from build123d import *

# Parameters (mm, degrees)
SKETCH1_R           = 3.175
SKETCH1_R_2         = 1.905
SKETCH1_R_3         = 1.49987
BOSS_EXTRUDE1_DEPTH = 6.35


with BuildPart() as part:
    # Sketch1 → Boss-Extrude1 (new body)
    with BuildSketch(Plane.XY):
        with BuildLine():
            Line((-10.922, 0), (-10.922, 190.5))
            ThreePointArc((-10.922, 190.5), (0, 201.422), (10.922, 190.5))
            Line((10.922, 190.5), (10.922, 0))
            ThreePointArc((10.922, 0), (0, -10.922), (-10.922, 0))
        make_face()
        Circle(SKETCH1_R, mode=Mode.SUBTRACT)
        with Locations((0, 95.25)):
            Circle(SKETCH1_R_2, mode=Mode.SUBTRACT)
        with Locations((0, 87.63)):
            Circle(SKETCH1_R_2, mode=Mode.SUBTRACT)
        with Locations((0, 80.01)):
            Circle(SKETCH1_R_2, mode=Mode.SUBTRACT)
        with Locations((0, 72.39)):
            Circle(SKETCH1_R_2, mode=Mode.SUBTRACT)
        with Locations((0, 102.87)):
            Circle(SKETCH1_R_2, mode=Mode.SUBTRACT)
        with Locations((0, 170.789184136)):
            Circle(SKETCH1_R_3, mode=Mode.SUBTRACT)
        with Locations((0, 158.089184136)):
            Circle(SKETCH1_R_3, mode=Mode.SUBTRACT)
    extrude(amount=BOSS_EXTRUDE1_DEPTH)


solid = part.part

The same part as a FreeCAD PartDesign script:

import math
import FreeCAD as App
import Part
import Sketcher
from FreeCAD import Vector
Q = App.Units.Quantity

doc = App.newDocument("Part")
body = doc.addObject("PartDesign::Body", "Body")

sketch1 = body.newObject("Sketcher::SketchObject", "Sketch")
sketch1.AttachmentSupport = (doc.getObject("XY_Plane"), [""])
sketch1.MapMode = "FlatFace"
sketch1.addGeometry(Part.LineSegment(Vector(-10.9, 190.5, 0), Vector(-10.9, 0, 0)), False)
sketch1.addGeometry(Part.ArcOfCircle(Part.Circle(Vector(0, 0, 0), Vector(0, 0, 1), 10.9), math.radians(180), math.radians(360)), False)
sketch1.addGeometry(Part.LineSegment(Vector(10.9, 0, 0), Vector(10.9, 190.5, 0)), False)
sketch1.addGeometry(Part.ArcOfCircle(Part.Circle(Vector(0, 190.5, 0), Vector(0, 0, 1), 10.9), math.radians(0), math.radians(180)), False)
sketch1.addGeometry(Part.Circle(Vector(0, 0, 0), Vector(0, 0, 1), 3.2), False)
sketch1.addGeometry(Part.Circle(Vector(0, 72.4, 0), Vector(0, 0, 1), 1.9), False)
sketch1.addGeometry(Part.Circle(Vector(0, 80, 0), Vector(0, 0, 1), 1.9), False)
sketch1.addGeometry(Part.Circle(Vector(0, 87.6, 0), Vector(0, 0, 1), 1.9), False)
sketch1.addGeometry(Part.Circle(Vector(0, 95.2, 0), Vector(0, 0, 1), 1.9), False)
sketch1.addGeometry(Part.Circle(Vector(0, 102.9, 0), Vector(0, 0, 1), 1.9), False)
sketch1.addGeometry(Part.Circle(Vector(0, 158.1, 0), Vector(0, 0, 1), 1.5), False)
sketch1.addGeometry(Part.Circle(Vector(0, 170.8, 0), Vector(0, 0, 1), 1.5), False)
sketch1.addConstraint(Sketcher.Constraint("Tangent", 0, 2, 1, 1))
sketch1.addConstraint(Sketcher.Constraint("Tangent", 1, 2, 2, 1))
sketch1.addConstraint(Sketcher.Constraint("Tangent", 2, 2, 3, 1))
sketch1.addConstraint(Sketcher.Constraint("Tangent", 3, 2, 0, 1))
sketch1.addConstraint(Sketcher.Constraint("Vertical", 0))
sketch1.addConstraint(Sketcher.Constraint("Vertical", 2))
sketch1.addConstraint(Sketcher.Constraint("Coincident", 1, 3, -1, 1))
sketch1.addConstraint(Sketcher.Constraint("Coincident", 4, 3, -1, 1))
sketch1.addConstraint(Sketcher.Constraint("Equal", 5, 6))
sketch1.addConstraint(Sketcher.Constraint("Equal", 6, 7))
sketch1.addConstraint(Sketcher.Constraint("Equal", 7, 8))
sketch1.addConstraint(Sketcher.Constraint("Equal", 8, 9))
sketch1.addConstraint(Sketcher.Constraint("Equal", 10, 11))
sketch1.addConstraint(Sketcher.Constraint("PointOnObject", 5, 3, -2))
sketch1.addConstraint(Sketcher.Constraint("PointOnObject", 6, 3, -2))
sketch1.addConstraint(Sketcher.Constraint("PointOnObject", 7, 3, -2))
sketch1.addConstraint(Sketcher.Constraint("PointOnObject", 8, 3, -2))
sketch1.addConstraint(Sketcher.Constraint("PointOnObject", 9, 3, -2))
sketch1.addConstraint(Sketcher.Constraint("PointOnObject", 10, 3, -2))
sketch1.addConstraint(Sketcher.Constraint("PointOnObject", 11, 3, -2))
sketch1.addConstraint(Sketcher.Constraint("Diameter", 4, Q("0.25 in")))
sketch1.addConstraint(Sketcher.Constraint("Diameter", 5, Q("0.15 in")))
sketch1.addConstraint(Sketcher.Constraint("Radius", 1, Q("0.43 in")))
sketch1.addConstraint(Sketcher.Constraint("DistanceY", 0, 2, 0, 1, Q("7.5 in")))
sketch1.addConstraint(Sketcher.Constraint("Diameter", 10, Q("0.1181 in")))
sketch1.addConstraint(Sketcher.Constraint("DistanceY", 5, 3, 6, 3, Q("0.3 in")))
sketch1.addConstraint(Sketcher.Constraint("DistanceY", 6, 3, 7, 3, Q("0.3 in")))
sketch1.addConstraint(Sketcher.Constraint("DistanceY", 7, 3, 8, 3, Q("0.3 in")))
sketch1.addConstraint(Sketcher.Constraint("DistanceY", 8, 3, 9, 3, Q("0.3 in")))
sketch1.addConstraint(Sketcher.Constraint("DistanceY", 10, 3, 11, 3, Q("0.5 in")))
sketch1.addConstraint(Sketcher.Constraint("DistanceY", -1, 1, 5, 3, Q("2.85 in")))
sketch1.addConstraint(Sketcher.Constraint("DistanceY", -1, 1, 10, 3, 158.089184))
pad1 = body.newObject("PartDesign::Pad", "Pad")
pad1.Profile = sketch1
pad1.Length = Q("0.25 in")

doc.recompute()
